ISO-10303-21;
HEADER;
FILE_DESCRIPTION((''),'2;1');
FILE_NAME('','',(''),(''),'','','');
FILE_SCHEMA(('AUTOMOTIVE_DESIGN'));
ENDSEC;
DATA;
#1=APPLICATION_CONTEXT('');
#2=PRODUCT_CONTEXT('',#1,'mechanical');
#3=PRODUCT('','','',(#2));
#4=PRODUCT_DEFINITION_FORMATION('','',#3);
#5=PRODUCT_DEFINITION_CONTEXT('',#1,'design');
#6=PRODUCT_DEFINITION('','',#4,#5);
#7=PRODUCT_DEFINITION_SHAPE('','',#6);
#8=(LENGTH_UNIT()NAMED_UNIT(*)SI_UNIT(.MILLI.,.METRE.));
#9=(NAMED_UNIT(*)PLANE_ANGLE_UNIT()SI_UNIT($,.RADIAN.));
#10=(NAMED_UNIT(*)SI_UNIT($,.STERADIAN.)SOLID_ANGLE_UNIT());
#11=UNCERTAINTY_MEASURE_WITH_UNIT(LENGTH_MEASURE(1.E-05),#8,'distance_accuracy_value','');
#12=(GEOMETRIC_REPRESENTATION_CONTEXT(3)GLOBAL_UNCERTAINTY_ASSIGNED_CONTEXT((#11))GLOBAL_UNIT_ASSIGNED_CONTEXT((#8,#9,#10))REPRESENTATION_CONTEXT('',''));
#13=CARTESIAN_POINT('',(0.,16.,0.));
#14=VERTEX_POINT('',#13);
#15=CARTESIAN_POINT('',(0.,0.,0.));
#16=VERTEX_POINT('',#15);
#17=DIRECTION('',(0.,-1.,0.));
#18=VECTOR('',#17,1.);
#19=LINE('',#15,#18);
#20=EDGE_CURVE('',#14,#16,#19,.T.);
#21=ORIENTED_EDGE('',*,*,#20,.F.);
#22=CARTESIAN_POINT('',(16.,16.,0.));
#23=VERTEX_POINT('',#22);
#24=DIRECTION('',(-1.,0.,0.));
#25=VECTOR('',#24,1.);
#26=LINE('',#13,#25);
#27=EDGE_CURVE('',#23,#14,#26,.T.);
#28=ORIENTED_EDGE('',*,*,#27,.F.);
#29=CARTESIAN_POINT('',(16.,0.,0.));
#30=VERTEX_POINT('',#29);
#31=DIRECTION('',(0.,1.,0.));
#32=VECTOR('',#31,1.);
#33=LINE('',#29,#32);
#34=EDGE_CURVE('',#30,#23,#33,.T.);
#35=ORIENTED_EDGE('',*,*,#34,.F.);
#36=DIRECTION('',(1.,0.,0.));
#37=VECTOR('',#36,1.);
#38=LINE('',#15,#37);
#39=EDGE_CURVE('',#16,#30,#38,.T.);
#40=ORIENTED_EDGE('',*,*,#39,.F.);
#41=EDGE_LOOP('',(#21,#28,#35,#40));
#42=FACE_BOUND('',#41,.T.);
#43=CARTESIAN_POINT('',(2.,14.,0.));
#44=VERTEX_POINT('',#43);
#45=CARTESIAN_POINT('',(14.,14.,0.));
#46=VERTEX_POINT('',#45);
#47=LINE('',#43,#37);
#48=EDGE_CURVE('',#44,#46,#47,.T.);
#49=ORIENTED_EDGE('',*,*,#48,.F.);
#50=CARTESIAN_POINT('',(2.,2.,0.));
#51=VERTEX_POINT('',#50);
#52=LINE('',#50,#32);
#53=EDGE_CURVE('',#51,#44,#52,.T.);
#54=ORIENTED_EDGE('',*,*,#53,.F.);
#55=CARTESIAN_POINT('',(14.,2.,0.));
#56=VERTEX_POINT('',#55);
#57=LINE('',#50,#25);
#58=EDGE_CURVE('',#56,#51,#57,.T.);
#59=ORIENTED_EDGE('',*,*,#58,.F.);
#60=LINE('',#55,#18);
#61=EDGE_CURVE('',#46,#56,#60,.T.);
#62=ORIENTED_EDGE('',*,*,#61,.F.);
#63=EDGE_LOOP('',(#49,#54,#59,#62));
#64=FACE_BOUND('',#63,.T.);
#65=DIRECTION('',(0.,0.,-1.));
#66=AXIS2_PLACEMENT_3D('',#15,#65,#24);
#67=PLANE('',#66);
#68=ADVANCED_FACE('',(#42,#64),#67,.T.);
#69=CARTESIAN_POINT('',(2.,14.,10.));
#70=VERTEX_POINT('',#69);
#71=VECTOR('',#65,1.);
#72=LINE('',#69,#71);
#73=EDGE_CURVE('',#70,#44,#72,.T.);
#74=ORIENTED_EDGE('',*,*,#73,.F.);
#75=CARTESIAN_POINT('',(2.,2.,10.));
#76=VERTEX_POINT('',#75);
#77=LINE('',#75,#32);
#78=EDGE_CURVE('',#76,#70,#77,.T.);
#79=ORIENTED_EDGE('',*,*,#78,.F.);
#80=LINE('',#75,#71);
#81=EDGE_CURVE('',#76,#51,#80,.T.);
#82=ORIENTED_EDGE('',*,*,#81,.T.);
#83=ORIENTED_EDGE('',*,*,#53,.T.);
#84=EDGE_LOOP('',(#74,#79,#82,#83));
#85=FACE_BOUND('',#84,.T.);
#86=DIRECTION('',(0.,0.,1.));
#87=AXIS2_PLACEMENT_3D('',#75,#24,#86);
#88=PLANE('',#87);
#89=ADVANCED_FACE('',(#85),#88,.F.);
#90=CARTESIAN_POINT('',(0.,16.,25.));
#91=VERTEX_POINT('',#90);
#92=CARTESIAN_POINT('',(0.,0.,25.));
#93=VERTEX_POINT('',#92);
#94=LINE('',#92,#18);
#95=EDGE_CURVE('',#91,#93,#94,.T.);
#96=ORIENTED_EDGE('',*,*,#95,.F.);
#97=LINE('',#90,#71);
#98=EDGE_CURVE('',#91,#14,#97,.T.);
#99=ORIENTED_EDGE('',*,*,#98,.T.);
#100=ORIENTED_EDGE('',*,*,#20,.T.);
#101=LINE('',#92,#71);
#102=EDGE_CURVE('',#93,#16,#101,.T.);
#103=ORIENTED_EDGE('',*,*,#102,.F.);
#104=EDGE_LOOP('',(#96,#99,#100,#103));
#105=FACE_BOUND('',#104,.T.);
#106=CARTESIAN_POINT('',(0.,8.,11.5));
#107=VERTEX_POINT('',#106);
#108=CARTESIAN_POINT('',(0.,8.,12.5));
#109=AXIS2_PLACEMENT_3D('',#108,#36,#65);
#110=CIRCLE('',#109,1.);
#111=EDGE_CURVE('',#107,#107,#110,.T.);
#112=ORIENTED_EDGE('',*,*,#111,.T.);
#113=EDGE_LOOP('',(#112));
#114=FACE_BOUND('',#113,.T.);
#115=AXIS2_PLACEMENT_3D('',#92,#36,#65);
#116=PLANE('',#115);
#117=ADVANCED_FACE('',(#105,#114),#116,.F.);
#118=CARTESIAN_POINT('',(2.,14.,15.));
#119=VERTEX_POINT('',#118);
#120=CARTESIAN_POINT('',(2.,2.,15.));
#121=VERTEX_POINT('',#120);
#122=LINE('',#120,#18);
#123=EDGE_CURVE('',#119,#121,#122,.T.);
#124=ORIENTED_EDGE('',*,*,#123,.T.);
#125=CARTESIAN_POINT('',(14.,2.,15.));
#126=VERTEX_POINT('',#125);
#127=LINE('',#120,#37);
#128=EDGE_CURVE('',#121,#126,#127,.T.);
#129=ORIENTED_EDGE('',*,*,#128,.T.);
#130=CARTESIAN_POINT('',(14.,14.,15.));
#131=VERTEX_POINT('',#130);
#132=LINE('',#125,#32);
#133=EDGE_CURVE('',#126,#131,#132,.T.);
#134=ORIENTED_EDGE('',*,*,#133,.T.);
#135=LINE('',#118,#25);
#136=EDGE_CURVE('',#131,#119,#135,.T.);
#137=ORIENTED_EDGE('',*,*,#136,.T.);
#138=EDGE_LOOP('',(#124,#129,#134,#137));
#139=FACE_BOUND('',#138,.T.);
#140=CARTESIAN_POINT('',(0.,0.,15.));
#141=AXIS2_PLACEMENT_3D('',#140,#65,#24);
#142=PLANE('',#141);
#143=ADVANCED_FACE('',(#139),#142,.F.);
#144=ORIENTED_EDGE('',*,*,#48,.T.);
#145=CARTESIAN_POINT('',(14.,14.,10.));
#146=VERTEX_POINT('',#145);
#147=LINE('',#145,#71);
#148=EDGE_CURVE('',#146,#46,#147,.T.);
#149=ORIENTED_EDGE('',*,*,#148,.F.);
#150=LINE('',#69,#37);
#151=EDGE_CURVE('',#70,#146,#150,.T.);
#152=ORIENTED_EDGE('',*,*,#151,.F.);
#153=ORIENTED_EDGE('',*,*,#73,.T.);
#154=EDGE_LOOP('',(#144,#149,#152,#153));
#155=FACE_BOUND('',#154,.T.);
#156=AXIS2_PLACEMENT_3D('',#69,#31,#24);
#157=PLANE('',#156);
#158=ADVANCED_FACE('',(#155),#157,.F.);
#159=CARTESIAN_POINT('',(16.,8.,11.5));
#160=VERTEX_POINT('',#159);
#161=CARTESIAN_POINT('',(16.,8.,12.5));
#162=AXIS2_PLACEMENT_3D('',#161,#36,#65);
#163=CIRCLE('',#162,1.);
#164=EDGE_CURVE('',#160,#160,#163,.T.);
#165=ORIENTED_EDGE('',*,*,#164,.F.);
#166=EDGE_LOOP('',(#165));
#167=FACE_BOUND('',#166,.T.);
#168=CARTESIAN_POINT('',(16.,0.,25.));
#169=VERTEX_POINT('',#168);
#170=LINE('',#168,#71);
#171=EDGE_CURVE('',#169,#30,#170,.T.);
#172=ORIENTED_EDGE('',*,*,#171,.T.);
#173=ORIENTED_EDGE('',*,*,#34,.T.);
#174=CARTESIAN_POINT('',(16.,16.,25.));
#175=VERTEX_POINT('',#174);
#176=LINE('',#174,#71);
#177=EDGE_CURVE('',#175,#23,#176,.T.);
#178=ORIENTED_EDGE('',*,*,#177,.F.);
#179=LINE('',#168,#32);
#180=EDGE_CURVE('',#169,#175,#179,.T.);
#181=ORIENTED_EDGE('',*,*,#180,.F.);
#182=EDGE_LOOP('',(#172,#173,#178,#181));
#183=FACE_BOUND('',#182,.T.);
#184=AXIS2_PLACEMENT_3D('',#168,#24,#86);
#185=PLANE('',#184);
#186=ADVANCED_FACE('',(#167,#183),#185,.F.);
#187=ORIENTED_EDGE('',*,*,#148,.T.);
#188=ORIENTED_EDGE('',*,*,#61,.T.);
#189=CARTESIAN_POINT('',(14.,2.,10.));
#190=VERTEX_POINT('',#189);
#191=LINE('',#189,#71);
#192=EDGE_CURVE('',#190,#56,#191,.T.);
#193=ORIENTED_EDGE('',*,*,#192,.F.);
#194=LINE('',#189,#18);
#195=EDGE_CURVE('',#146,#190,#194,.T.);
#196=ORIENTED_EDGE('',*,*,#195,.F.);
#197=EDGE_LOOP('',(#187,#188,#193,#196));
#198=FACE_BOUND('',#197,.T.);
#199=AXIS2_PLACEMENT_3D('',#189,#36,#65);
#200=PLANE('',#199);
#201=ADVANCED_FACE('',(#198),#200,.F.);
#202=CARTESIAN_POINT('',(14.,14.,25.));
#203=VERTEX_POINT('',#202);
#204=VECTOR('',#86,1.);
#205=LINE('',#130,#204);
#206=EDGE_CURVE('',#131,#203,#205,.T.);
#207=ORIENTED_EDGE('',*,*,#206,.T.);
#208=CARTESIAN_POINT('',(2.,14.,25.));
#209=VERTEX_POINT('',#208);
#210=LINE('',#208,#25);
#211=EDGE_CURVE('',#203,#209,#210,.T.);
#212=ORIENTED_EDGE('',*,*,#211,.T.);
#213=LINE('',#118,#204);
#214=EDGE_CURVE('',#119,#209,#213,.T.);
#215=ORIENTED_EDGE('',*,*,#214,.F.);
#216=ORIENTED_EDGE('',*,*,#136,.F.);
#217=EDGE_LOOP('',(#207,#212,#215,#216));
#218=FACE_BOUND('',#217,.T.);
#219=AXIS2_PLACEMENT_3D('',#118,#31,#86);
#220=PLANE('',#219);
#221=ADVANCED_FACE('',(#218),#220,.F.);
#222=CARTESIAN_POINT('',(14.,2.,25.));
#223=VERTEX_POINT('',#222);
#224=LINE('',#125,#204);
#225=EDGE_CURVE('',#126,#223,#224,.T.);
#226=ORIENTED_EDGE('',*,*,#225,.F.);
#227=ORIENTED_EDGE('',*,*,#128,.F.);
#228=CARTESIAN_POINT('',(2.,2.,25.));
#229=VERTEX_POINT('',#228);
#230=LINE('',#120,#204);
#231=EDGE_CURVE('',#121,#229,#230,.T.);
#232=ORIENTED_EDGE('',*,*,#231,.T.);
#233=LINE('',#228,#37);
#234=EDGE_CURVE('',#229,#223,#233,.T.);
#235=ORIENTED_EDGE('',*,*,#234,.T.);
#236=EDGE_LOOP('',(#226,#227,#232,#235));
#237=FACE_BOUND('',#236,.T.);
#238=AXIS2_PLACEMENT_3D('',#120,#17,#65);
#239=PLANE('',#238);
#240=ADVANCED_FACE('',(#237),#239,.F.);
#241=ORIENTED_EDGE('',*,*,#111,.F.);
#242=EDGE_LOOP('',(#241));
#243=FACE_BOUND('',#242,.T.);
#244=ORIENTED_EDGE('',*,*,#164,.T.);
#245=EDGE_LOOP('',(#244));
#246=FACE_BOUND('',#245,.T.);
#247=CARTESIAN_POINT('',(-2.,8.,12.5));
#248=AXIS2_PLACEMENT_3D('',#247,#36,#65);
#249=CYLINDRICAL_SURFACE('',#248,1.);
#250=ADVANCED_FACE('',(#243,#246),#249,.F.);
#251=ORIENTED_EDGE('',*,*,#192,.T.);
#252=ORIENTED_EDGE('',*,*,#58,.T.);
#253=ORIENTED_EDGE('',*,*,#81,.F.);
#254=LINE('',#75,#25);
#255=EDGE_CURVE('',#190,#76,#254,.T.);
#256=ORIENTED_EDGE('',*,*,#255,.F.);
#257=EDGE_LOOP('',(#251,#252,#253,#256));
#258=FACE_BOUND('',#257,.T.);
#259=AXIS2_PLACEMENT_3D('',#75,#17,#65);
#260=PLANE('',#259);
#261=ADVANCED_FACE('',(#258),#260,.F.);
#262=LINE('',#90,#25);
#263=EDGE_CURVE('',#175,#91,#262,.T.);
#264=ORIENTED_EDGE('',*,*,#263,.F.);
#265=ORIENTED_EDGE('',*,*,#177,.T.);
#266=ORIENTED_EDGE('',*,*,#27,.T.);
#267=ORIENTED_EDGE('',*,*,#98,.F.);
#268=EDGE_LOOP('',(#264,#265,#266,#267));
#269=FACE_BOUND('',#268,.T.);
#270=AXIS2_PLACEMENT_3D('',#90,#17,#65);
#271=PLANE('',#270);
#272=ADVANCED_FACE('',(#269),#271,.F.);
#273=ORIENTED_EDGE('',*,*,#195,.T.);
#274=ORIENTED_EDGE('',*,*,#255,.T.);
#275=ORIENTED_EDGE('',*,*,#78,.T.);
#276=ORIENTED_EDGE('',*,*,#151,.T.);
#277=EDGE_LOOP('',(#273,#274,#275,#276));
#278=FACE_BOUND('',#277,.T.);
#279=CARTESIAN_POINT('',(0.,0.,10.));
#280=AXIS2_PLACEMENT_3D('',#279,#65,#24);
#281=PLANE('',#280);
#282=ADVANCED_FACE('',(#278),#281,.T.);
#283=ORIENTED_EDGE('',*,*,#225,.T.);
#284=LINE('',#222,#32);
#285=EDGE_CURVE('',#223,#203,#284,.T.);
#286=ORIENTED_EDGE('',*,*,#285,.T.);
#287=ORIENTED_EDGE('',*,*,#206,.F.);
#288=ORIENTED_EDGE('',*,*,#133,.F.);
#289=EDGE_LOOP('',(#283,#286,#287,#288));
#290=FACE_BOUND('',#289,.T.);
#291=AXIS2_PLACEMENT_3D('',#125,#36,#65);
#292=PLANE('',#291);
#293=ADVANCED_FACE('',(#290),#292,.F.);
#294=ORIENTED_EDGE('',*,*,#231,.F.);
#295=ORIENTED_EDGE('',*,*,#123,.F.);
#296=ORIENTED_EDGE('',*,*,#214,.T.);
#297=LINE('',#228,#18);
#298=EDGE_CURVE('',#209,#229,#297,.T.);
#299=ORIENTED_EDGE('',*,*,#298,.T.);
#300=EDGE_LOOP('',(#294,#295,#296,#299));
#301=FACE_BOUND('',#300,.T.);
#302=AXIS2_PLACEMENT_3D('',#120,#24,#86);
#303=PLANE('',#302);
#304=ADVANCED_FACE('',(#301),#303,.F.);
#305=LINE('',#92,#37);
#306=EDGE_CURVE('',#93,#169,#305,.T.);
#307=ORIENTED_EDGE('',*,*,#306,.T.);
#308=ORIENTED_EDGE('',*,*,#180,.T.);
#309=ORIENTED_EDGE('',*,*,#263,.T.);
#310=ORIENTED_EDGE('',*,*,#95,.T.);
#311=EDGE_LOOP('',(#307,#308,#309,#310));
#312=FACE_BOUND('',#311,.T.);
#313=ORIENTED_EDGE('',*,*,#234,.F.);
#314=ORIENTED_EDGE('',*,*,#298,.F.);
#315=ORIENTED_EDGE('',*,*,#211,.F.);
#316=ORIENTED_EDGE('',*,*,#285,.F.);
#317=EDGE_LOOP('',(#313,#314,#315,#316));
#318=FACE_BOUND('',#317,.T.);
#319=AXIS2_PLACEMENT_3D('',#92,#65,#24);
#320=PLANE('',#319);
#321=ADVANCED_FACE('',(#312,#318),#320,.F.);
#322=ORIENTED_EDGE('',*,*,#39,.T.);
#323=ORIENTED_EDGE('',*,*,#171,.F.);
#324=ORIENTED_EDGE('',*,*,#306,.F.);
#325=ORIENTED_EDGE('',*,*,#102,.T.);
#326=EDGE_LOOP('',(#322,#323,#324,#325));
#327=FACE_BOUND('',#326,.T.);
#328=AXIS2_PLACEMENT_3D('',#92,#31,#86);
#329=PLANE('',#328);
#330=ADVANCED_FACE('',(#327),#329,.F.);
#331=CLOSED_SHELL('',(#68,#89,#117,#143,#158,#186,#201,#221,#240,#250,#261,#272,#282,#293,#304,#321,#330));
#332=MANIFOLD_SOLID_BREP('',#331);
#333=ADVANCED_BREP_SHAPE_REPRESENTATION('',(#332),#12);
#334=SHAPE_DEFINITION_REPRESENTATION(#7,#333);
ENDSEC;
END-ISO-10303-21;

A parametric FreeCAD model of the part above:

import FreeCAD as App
import Part
import Sketcher
from FreeCAD import Vector


def add_polygon(sketch, points):
    """Adds a closed chain of lines whose ends are joined by coincident constraints."""
    first, n = sketch.GeometryCount, len(points)
    for a, b in zip(points, points[1:] + points[:1]):
        sketch.addGeometry(Part.LineSegment(App.Vector(*a, 0), App.Vector(*b, 0)), False)
    for i in range(n):
        sketch.addConstraint(Sketcher.Constraint("Coincident", first + i, 2, first + (i + 1) % n, 1))

doc = App.newDocument("Part")
body = doc.addObject("PartDesign::Body", "Body")

sketch1 = doc.addObject("Sketcher::SketchObject", "Sketch")
body.addObject(sketch1)
sketch1.AttachmentSupport = (doc.XY_Plane, [""])
sketch1.MapMode = "FlatFace"
add_polygon(sketch1, [(0, 16), (0, 0), (16, 0), (16, 16)])
sketch1.addConstraint([
    Sketcher.Constraint("Vertical", 0),
    Sketcher.Constraint("Horizontal", 1),
    Sketcher.Constraint("Vertical", 2),
    Sketcher.Constraint("Horizontal", 3),
    Sketcher.Constraint("Coincident", 0, 2, -1, 1),
    Sketcher.Constraint("Equal", 3, 0),
    Sketcher.Constraint("DistanceX", 1, 1, 1, 2, 16.0),
])
pad1 = doc.addObject("PartDesign::Pad", "Pad")
body.addObject(pad1)
pad1.Profile = sketch1
pad1.Length = 25

sketch2 = doc.addObject("Sketcher::SketchObject", "Sketch001")
body.addObject(sketch2)
sketch2.AttachmentSupport = (doc.XY_Plane, [""])
sketch2.MapMode = "FlatFace"
add_polygon(sketch2, [(14, 14), (14, 2), (2, 2), (2, 14)])
sketch2.addConstraint([
    Sketcher.Constraint("Vertical", 0),
    Sketcher.Constraint("Horizontal", 1),
    Sketcher.Constraint("Vertical", 2),
    Sketcher.Constraint("Horizontal", 3),
    Sketcher.Constraint("Equal", 3, 0),
    Sketcher.Constraint("DistanceX", 1, 2, 1, 1, 12.0),
    Sketcher.Constraint("DistanceX", -1, 1, 0, 2, 14.0),
    Sketcher.Constraint("DistanceY", -1, 1, 0, 2, 2.0),
])
pocket1 = doc.addObject("PartDesign::Pocket", "Pocket")
body.addObject(pocket1)
pocket1.Profile = sketch2
pocket1.Length = 10
pocket1.Reversed = True

sketch3 = doc.addObject("Sketcher::SketchObject", "Sketch002")
body.addObject(sketch3)
sketch3.AttachmentSupport = (doc.XY_Plane, [""])
sketch3.MapMode = "FlatFace"
sketch3.AttachmentOffset = App.Placement(Vector(0, 0, 25), App.Rotation())
add_polygon(sketch3, [(2, 14), (2, 2), (14, 2), (14, 14)])
sketch3.addConstraint([
    Sketcher.Constraint("Vertical", 0),
    Sketcher.Constraint("Horizontal", 1),
    Sketcher.Constraint("Vertical", 2),
    Sketcher.Constraint("Horizontal", 3),
    Sketcher.Constraint("Equal", 3, 0),
    Sketcher.Constraint("DistanceX", 1, 1, 1, 2, 12.0),
    Sketcher.Constraint("DistanceX", -1, 1, 0, 2, 2.0),
    Sketcher.Constraint("DistanceY", -1, 1, 0, 2, 2.0),
])
pocket2 = doc.addObject("PartDesign::Pocket", "Pocket001")
body.addObject(pocket2)
pocket2.Profile = sketch3
pocket2.Length = 10

sketch4 = doc.addObject("Sketcher::SketchObject", "Sketch003")
body.addObject(sketch4)
sketch4.AttachmentSupport = (doc.YZ_Plane, [""])
sketch4.MapMode = "FlatFace"
sketch4.AttachmentOffset = App.Placement(Vector(0, 0, 16), App.Rotation())
sketch4.addGeometry(Part.Circle(Vector(8, 12.5, 0), Vector(0, 0, 1), 1), False)
sketch4.addConstraint([
    Sketcher.Constraint("Diameter", 0, 2.0),
    Sketcher.Constraint("DistanceX", -1, 1, 0, 3, 8.0),
    Sketcher.Constraint("DistanceY", -1, 1, 0, 3, 12.5),
])
pocket3 = doc.addObject("PartDesign::Pocket", "Pocket002")
body.addObject(pocket3)
pocket3.Profile = sketch4
pocket3.Length = 18

doc.recompute()
